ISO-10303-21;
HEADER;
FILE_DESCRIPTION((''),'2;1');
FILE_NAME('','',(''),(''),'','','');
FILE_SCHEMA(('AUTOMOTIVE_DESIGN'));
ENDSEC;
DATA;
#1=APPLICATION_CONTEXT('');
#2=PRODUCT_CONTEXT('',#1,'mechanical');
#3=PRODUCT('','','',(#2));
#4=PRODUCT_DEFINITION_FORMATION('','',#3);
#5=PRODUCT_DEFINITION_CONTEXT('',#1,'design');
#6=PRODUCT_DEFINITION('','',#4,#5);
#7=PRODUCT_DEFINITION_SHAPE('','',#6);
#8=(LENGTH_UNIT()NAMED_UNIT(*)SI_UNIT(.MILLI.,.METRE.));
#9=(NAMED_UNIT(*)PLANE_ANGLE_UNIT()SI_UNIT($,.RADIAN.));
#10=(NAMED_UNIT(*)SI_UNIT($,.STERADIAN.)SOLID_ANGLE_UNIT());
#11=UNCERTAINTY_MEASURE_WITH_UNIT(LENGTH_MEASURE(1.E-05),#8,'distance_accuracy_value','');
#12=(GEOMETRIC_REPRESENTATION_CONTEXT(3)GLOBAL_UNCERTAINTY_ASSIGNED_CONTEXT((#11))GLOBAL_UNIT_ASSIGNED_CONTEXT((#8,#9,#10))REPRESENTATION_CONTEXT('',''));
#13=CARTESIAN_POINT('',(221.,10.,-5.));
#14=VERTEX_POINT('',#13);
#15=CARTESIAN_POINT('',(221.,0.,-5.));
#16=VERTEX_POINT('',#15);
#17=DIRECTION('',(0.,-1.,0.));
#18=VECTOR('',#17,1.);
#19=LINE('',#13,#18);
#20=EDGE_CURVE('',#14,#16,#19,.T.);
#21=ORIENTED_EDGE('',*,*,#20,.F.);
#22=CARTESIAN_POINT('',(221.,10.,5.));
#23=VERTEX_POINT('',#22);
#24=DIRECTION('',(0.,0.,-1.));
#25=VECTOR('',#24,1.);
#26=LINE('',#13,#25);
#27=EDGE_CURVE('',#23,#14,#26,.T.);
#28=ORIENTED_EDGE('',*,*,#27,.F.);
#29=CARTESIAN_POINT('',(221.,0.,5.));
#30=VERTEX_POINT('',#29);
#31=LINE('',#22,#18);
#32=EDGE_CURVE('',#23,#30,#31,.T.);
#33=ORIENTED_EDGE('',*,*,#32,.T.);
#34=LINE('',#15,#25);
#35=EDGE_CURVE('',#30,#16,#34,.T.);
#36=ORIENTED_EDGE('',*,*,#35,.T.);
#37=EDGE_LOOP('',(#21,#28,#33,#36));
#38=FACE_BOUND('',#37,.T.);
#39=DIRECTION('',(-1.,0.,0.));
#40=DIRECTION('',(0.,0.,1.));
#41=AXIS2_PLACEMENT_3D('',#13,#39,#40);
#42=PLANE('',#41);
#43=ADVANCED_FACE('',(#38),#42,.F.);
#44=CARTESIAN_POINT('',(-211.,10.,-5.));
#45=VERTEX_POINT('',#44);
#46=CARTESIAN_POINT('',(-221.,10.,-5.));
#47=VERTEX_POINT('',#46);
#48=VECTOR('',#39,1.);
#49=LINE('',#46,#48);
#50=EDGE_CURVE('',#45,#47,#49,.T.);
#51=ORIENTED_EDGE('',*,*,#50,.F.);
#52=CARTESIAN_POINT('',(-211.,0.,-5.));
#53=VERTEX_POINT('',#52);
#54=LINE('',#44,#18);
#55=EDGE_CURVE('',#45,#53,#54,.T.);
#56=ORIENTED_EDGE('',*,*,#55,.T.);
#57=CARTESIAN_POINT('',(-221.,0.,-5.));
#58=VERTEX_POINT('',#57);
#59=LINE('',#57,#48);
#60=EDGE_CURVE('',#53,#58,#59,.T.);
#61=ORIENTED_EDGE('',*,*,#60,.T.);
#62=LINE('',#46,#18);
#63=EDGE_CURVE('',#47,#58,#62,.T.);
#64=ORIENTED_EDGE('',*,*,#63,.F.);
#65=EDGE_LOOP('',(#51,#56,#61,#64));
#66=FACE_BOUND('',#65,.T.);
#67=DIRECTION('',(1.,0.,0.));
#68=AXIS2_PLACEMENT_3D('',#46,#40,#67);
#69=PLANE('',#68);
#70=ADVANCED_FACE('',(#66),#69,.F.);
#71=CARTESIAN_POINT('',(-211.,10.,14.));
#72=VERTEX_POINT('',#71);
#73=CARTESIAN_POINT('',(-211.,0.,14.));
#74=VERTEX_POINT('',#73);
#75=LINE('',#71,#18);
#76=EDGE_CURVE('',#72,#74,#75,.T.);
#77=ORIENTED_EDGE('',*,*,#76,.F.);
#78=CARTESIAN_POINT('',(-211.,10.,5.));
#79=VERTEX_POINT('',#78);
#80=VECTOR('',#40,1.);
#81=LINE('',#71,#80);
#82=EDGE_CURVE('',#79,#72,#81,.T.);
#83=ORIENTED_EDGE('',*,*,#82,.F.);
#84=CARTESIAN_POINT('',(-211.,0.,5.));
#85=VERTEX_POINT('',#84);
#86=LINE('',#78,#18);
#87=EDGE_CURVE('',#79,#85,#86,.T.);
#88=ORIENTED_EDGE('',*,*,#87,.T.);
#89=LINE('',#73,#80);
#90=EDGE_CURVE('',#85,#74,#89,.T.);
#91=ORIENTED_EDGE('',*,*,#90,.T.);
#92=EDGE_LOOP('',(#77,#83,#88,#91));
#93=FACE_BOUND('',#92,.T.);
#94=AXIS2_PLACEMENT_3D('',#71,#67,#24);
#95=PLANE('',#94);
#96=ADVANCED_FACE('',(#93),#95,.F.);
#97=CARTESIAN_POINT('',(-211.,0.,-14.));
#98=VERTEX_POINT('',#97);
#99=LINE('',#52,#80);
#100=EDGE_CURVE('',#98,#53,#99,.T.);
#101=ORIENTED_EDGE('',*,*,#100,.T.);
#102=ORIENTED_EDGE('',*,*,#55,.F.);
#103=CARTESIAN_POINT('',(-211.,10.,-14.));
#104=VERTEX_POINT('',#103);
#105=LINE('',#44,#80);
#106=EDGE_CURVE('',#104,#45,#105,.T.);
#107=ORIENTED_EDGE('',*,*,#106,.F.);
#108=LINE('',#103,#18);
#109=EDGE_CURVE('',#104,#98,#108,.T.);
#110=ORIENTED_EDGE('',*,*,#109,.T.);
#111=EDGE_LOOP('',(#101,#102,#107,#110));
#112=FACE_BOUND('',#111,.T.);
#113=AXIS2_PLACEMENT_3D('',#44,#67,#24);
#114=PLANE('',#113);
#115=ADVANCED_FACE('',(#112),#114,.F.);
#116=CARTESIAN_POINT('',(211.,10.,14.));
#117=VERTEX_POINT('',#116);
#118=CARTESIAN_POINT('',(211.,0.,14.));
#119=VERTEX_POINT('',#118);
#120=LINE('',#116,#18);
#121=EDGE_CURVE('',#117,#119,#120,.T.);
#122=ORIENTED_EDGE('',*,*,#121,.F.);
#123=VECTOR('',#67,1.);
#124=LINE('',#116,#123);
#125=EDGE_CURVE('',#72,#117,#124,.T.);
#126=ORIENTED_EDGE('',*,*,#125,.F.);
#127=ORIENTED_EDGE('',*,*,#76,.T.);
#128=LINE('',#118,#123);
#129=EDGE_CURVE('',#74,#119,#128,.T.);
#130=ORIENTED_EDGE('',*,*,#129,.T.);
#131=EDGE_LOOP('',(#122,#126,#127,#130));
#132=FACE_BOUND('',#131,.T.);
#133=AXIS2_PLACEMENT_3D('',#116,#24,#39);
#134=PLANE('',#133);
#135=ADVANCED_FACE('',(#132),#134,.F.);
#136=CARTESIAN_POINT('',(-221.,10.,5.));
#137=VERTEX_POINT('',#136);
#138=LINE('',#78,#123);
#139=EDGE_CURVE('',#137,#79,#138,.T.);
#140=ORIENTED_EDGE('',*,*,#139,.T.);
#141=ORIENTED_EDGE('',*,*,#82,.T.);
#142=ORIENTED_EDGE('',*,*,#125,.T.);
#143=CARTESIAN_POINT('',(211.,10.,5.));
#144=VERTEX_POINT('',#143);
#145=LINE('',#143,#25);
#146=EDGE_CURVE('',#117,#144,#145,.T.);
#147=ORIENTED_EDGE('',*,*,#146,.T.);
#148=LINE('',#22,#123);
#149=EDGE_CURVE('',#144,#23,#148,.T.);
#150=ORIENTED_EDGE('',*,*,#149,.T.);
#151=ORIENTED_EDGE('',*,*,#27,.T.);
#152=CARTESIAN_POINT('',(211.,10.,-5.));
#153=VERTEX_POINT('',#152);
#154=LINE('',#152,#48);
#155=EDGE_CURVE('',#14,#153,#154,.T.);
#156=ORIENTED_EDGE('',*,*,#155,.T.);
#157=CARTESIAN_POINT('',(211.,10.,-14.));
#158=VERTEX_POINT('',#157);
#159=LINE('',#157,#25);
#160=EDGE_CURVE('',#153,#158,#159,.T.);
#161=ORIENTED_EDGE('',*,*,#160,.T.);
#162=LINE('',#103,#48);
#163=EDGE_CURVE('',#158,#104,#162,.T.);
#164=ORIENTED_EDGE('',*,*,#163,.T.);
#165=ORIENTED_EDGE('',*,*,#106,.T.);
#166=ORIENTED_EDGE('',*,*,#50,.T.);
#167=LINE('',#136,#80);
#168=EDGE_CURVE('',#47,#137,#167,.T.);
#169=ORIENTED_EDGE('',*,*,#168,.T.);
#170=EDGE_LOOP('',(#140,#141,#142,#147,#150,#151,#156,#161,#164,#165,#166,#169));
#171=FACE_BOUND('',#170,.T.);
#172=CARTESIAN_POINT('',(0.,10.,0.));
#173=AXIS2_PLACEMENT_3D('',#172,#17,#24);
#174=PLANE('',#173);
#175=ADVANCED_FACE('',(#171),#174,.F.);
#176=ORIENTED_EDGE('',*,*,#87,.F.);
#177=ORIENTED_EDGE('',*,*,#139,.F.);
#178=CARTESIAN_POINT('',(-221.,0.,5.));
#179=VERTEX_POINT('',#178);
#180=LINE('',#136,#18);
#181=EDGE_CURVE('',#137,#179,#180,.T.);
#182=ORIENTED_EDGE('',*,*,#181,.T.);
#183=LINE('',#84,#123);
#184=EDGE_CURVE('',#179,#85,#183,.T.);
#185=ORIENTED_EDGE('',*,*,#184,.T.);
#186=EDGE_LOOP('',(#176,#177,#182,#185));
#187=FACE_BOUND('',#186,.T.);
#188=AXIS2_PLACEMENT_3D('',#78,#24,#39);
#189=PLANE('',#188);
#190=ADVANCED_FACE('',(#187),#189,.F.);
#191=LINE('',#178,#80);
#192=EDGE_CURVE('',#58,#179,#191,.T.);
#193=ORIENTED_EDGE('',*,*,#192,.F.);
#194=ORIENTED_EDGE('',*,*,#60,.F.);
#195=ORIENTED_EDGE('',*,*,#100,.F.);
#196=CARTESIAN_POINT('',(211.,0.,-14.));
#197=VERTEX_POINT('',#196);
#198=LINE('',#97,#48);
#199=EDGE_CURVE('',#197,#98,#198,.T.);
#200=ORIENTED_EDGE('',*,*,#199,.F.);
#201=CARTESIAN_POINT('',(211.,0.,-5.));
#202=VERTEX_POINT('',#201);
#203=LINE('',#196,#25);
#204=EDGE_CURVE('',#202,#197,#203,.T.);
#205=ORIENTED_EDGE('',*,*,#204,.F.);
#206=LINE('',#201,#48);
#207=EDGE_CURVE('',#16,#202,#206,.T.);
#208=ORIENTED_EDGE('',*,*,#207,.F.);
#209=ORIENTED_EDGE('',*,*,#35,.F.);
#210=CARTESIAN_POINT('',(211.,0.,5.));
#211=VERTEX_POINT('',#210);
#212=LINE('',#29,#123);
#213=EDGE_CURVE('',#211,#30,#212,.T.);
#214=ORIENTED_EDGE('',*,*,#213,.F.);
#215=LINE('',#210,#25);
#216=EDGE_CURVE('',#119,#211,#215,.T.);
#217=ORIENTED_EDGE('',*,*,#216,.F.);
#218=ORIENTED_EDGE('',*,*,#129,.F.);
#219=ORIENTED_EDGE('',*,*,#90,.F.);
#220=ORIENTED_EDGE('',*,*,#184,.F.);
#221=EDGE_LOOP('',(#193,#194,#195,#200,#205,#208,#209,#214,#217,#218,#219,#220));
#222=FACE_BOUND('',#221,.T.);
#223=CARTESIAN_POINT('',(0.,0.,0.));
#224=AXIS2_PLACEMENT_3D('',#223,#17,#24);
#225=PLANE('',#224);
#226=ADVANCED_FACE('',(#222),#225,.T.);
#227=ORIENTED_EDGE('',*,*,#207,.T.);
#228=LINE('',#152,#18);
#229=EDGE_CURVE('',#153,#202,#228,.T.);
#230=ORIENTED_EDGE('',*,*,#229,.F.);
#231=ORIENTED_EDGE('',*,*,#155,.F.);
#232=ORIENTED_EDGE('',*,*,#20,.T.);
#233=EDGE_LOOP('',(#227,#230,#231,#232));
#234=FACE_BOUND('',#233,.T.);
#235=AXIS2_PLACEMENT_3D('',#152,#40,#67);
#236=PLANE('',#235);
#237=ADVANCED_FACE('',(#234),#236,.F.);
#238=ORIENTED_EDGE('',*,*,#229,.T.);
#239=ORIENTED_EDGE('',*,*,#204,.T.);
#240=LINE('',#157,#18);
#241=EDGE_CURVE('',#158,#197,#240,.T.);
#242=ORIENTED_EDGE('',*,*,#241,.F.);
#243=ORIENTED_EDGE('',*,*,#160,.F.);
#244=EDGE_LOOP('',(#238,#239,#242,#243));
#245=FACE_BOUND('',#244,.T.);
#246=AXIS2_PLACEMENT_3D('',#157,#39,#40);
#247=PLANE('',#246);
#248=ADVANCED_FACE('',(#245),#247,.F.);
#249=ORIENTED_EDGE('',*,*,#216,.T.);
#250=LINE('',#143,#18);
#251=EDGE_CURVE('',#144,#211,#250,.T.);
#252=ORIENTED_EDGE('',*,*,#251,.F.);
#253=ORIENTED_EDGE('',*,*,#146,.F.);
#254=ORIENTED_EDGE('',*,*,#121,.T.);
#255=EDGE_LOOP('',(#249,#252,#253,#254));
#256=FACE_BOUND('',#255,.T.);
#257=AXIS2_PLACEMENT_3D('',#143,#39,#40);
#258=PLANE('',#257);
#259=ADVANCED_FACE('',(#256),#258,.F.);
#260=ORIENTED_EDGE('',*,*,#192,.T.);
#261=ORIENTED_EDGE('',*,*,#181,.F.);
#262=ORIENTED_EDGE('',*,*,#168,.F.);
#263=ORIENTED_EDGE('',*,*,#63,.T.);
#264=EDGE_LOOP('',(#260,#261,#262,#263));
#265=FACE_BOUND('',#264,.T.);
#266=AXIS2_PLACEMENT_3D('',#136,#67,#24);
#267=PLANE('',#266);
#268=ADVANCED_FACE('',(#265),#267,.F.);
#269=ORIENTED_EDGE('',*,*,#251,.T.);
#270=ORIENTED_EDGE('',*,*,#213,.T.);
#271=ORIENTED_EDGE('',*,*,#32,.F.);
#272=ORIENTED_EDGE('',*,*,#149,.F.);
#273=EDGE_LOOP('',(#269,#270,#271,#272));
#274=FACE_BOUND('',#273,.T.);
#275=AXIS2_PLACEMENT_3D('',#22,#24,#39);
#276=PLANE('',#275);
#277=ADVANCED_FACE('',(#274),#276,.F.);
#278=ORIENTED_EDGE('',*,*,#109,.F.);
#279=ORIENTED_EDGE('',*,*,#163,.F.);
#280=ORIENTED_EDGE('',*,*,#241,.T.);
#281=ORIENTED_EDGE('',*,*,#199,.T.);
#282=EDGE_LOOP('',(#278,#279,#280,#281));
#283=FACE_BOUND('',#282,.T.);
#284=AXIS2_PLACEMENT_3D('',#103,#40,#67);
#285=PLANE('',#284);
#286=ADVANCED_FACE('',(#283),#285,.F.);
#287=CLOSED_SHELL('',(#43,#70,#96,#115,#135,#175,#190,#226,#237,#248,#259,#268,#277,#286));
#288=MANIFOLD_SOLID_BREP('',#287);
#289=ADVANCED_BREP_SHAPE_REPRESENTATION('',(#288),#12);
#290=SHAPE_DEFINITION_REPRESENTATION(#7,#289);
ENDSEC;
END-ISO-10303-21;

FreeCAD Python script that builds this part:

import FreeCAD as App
import Part
import Sketcher

V = App.Vector

doc = App.newDocument("Part")
body = doc.addObject("PartDesign::Body", "Body")

# Sketch on XZ plane
sketch1 = doc.addObject("Sketcher::SketchObject", "Sketch")
body.addObject(sketch1)
sketch1.AttachmentSupport = (doc.XZ_Plane, [""])
sketch1.MapMode = "FlatFace"
sketch1.addGeometry([
    Part.LineSegment(V(211, -14, 0), V(-211, -14, 0)),  # 0
    Part.LineSegment(V(-211, -14, 0), V(-211, -5, 0)),  # 1
    Part.LineSegment(V(-211, -5, 0), V(-221, -5, 0)),  # 2
    Part.LineSegment(V(-221, -5, 0), V(-221, 5, 0)),  # 3
    Part.LineSegment(V(-221, 5, 0), V(-211, 5, 0)),  # 4
    Part.LineSegment(V(-211, 5, 0), V(-211, 14, 0)),  # 5
    Part.LineSegment(V(-211, 14, 0), V(211, 14, 0)),  # 6
    Part.LineSegment(V(211, 14, 0), V(211, 5, 0)),  # 7
    Part.LineSegment(V(211, 5, 0), V(221, 5, 0)),  # 8
    Part.LineSegment(V(221, 5, 0), V(221, -5, 0)),  # 9
    Part.LineSegment(V(221, -5, 0), V(211, -5, 0)),  # 10
    Part.LineSegment(V(211, -5, 0), V(211, -14, 0)),  # 11
], False)
sketch1.addConstraint([
    Sketcher.Constraint("Coincident", 0, 2, 1, 1),
    Sketcher.Constraint("Coincident", 1, 2, 2, 1),
    Sketcher.Constraint("Coincident", 2, 2, 3, 1),
    Sketcher.Constraint("Coincident", 3, 2, 4, 1),
    Sketcher.Constraint("Coincident", 4, 2, 5, 1),
    Sketcher.Constraint("Coincident", 5, 2, 6, 1),
    Sketcher.Constraint("Coincident", 6, 2, 7, 1),
    Sketcher.Constraint("Coincident", 7, 2, 8, 1),
    Sketcher.Constraint("Coincident", 8, 2, 9, 1),
    Sketcher.Constraint("Coincident", 9, 2, 10, 1),
    Sketcher.Constraint("Coincident", 10, 2, 11, 1),
    Sketcher.Constraint("Coincident", 11, 2, 0, 1),
    Sketcher.Constraint("Horizontal", 0),
    Sketcher.Constraint("Vertical", 1),
    Sketcher.Constraint("Horizontal", 2),
    Sketcher.Constraint("Vertical", 3),
    Sketcher.Constraint("Horizontal", 4),
    Sketcher.Constraint("Vertical", 5),
    Sketcher.Constraint("Horizontal", 6),
    Sketcher.Constraint("Vertical", 7),
    Sketcher.Constraint("Horizontal", 8),
    Sketcher.Constraint("Vertical", 9),
    Sketcher.Constraint("Horizontal", 10),
    Sketcher.Constraint("Vertical", 11),
    Sketcher.Constraint("Symmetric", 0, 2, 6, 2, -1, 1),
    Sketcher.Constraint("Symmetric", 2, 2, 8, 2, -1, 1),
    Sketcher.Constraint("Symmetric", 4, 2, 10, 2, -1, 1),
    Sketcher.Constraint("Symmetric", 4, 2, 7, 2, -2),
    Sketcher.Constraint("Equal", 10, 3),
    Sketcher.Constraint("DistanceX", 0, 2, 0, 1, 422.0),
    Sketcher.Constraint("DistanceX", 2, 2, 2, 1, 10.0),
    Sketcher.Constraint("DistanceY", 1, 1, 1, 2, 9.0),
])
pad1 = doc.addObject("PartDesign::Pad", "Pad")
body.addObject(pad1)
pad1.Profile = sketch1
pad1.Length = 10
pad1.Reversed = True

doc.recompute()
